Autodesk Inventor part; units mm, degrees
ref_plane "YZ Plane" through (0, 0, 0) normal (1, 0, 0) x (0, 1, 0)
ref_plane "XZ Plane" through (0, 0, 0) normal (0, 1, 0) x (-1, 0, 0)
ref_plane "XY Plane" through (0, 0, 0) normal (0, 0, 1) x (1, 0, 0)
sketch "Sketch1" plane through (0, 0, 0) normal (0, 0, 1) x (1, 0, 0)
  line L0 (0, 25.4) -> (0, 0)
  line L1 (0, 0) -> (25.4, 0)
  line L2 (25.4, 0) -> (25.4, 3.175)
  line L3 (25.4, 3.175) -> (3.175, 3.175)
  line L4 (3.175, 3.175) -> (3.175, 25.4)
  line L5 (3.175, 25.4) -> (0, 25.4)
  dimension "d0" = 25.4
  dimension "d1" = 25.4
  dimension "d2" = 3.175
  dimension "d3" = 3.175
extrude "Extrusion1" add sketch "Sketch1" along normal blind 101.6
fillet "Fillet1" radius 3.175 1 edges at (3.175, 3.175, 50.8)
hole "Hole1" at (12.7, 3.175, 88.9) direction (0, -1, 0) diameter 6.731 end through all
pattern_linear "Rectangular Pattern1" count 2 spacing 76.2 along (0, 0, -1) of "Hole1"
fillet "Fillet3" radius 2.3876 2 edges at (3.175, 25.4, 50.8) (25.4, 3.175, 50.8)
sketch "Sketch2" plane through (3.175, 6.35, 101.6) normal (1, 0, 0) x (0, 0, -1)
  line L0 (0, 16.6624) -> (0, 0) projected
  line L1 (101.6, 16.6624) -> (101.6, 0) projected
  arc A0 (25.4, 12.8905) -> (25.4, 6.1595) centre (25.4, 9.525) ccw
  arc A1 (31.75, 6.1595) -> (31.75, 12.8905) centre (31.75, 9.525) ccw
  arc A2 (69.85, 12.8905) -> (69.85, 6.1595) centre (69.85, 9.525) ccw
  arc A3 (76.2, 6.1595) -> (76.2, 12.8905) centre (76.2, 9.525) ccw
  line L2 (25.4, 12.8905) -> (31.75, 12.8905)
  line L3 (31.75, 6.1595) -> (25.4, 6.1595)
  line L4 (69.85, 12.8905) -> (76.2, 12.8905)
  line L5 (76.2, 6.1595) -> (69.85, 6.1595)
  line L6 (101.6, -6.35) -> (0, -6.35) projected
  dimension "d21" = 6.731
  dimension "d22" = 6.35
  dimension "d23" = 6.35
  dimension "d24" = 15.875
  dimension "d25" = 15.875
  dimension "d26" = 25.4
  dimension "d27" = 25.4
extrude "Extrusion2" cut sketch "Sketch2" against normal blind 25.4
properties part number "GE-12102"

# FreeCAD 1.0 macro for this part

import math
import FreeCAD as App
import Part
import Sketcher
from FreeCAD import Vector
Q = App.Units.Quantity


def edges_at(feature, points):
    """Names of the edges that pass closest to the given points."""
    edges = feature.Shape.Edges
    near = lambda p: min(range(len(edges)), key=lambda i: edges[i].distToShape(Part.Vertex(*p))[0])
    return sorted({f"Edge{near(p) + 1}" for p in points})


def add_polygon(sketch, points):
    """Adds a closed chain of lines whose ends are joined by coincident constraints."""
    first, n = sketch.GeometryCount, len(points)
    for a, b in zip(points, points[1:] + points[:1]):
        sketch.addGeometry(Part.LineSegment(App.Vector(*a, 0), App.Vector(*b, 0)), False)
    for i in range(n):
        sketch.addConstraint(Sketcher.Constraint("Coincident", first + i, 2, first + (i + 1) % n, 1))

doc = App.newDocument("Part")
body = doc.addObject("PartDesign::Body", "Body")

# Sketch on XY plane
sketch1 = doc.addObject("Sketcher::SketchObject", "Sketch")
body.addObject(sketch1)
sketch1.AttachmentSupport = (doc.XY_Plane, [""])
sketch1.MapMode = "FlatFace"
add_polygon(sketch1, [(3.2, 25.4), (0, 25.4), (0, 0), (25.4, 0), (25.4, 3.2), (3.2, 3.2)])  # lines 0-5
sketch1.addConstraint([
    Sketcher.Constraint("Horizontal", 0),
    Sketcher.Constraint("Vertical", 1),
    Sketcher.Constraint("Horizontal", 2),
    Sketcher.Constraint("Vertical", 3),
    Sketcher.Constraint("Horizontal", 4),
    Sketcher.Constraint("Vertical", 5),
    Sketcher.Constraint("Coincident", 1, 2, -1, 1),
    Sketcher.Constraint("Equal", 2, 1),
    Sketcher.Constraint("Equal", 0, 3),
    Sketcher.Constraint("DistanceX", 2, 1, 2, 2, Q("1 in")),
    Sketcher.Constraint("DistanceX", 0, 2, 0, 1, Q("0.125 in")),
])
pad1 = doc.addObject("PartDesign::Pad", "Pad")
body.addObject(pad1)
pad1.Profile = sketch1
pad1.Length = Q("4 in")
doc.recompute()

fillet = doc.addObject("PartDesign::Fillet", "Fillet")
body.addObject(fillet)
fillet.Base = (pad1, edges_at(pad1, [(3.175, 3.175, 50.8)]))
fillet.Radius = Q("0.125 in")

# Sketch on XZ plane
sketch2 = doc.addObject("Sketcher::SketchObject", "Sketch001")
body.addObject(sketch2)
sketch2.AttachmentSupport = (doc.XZ_Plane, [""])
sketch2.MapMode = "FlatFace"
sketch2.AttachmentOffset = App.Placement(Vector(0, 0, -0.125 * 25.4), App.Rotation())
sketch2.addGeometry(Part.Circle(Vector(12.7, 88.9, 0), Vector(0, 0, 1), 3.4), False)
sketch2.addConstraint([
    Sketcher.Constraint("Diameter", 0, Q("0.265 in")),
    Sketcher.Constraint("DistanceX", -1, 1, 0, 3, Q("0.5 in")),
    Sketcher.Constraint("DistanceY", -1, 1, 0, 3, Q("3.5 in")),
])
doc.recompute()
hole = doc.addObject("PartDesign::Hole", "Hole")
body.addObject(hole)
hole.Profile = sketch2
hole.ThreadType = "None"
hole.Diameter = Q("0.265 in")
hole.DepthType = "ThroughAll"
hole.Reversed = True
doc.recompute()

linearpattern = doc.addObject("PartDesign::LinearPattern", "LinearPattern")
body.addObject(linearpattern)
linearpattern.Originals = [hole]
linearpattern.Direction = (doc.Z_Axis, [""])
linearpattern.Mode = "offset"
linearpattern.Offset = Q("3 in")
linearpattern.Occurrences = 2
linearpattern.Reversed = True
body.Tip = linearpattern
doc.recompute()

fillet2 = doc.addObject("PartDesign::Fillet", "Fillet001")
body.addObject(fillet2)
fillet2.Base = (linearpattern, edges_at(linearpattern, [(3.175, 25.4, 50.8), (25.4, 3.175, 50.8)]))
fillet2.Radius = Q("0.094 in")

# Sketch on YZ plane
sketch3 = doc.addObject("Sketcher::SketchObject", "Sketch002")
body.addObject(sketch3)
sketch3.AttachmentSupport = (doc.YZ_Plane, [""])
sketch3.MapMode = "FlatFace"
sketch3.AttachmentOffset = App.Placement(Vector(0, 0, 0.125 * 25.4), App.Rotation())
sketch3.addGeometry([
    Part.LineSegment(Vector(19.2, 69.8, 0), Vector(19.2, 76.2, 0)),  # 0
    Part.ArcOfCircle(Part.Circle(Vector(15.9, 76.2, 0), Vector(0, 0, 1), 3.4), math.radians(0), math.radians(180)),  # 1
    Part.LineSegment(Vector(12.5, 76.2, 0), Vector(12.5, 69.8, 0)),  # 2
    Part.ArcOfCircle(Part.Circle(Vector(15.9, 69.8, 0), Vector(0, 0, 1), 3.4), math.radians(180), math.radians(360)),  # 3
    Part.LineSegment(Vector(19.2, 25.4, 0), Vector(19.2, 31.8, 0)),  # 4
    Part.ArcOfCircle(Part.Circle(Vector(15.9, 31.8, 0), Vector(0, 0, 1), 3.4), math.radians(0), math.radians(180)),  # 5
    Part.LineSegment(Vector(12.5, 31.8, 0), Vector(12.5, 25.4, 0)),  # 6
    Part.ArcOfCircle(Part.Circle(Vector(15.9, 25.4, 0), Vector(0, 0, 1), 3.4), math.radians(180), math.radians(360)),  # 7
], False)
sketch3.addConstraint([
    Sketcher.Constraint("Tangent", 0, 2, 1, 1),
    Sketcher.Constraint("Tangent", 1, 2, 2, 1),
    Sketcher.Constraint("Tangent", 2, 2, 3, 1),
    Sketcher.Constraint("Tangent", 3, 2, 0, 1),
    Sketcher.Constraint("Tangent", 4, 2, 5, 1),
    Sketcher.Constraint("Tangent", 5, 2, 6, 1),
    Sketcher.Constraint("Tangent", 6, 2, 7, 1),
    Sketcher.Constraint("Tangent", 7, 2, 4, 1),
    Sketcher.Constraint("Vertical", 0),
    Sketcher.Constraint("Vertical", 2),
    Sketcher.Constraint("Vertical", 4),
    Sketcher.Constraint("Vertical", 6),
    Sketcher.Constraint("Equal", 3, 5),
    Sketcher.Constraint("Vertical", 3, 3, 5, 3),
    Sketcher.Constraint("Equal", 2, 4),
    Sketcher.Constraint("DistanceY", -1, 1, 7, 3, Q("1 in")),
    Sketcher.Constraint("DistanceY", 0, 1, 0, 2, Q("0.25 in")),
    Sketcher.Constraint("Radius", 1, Q("0.1325 in")),
    Sketcher.Constraint("DistanceX", -1, 1, 1, 3, Q("0.625 in")),
    Sketcher.Constraint("DistanceY", -1, 1, 1, 3, Q("3 in")),
])
pocket1 = doc.addObject("PartDesign::Pocket", "Pocket")
body.addObject(pocket1)
pocket1.Profile = sketch3
pocket1.Length = Q("1 in")

doc.recompute()
